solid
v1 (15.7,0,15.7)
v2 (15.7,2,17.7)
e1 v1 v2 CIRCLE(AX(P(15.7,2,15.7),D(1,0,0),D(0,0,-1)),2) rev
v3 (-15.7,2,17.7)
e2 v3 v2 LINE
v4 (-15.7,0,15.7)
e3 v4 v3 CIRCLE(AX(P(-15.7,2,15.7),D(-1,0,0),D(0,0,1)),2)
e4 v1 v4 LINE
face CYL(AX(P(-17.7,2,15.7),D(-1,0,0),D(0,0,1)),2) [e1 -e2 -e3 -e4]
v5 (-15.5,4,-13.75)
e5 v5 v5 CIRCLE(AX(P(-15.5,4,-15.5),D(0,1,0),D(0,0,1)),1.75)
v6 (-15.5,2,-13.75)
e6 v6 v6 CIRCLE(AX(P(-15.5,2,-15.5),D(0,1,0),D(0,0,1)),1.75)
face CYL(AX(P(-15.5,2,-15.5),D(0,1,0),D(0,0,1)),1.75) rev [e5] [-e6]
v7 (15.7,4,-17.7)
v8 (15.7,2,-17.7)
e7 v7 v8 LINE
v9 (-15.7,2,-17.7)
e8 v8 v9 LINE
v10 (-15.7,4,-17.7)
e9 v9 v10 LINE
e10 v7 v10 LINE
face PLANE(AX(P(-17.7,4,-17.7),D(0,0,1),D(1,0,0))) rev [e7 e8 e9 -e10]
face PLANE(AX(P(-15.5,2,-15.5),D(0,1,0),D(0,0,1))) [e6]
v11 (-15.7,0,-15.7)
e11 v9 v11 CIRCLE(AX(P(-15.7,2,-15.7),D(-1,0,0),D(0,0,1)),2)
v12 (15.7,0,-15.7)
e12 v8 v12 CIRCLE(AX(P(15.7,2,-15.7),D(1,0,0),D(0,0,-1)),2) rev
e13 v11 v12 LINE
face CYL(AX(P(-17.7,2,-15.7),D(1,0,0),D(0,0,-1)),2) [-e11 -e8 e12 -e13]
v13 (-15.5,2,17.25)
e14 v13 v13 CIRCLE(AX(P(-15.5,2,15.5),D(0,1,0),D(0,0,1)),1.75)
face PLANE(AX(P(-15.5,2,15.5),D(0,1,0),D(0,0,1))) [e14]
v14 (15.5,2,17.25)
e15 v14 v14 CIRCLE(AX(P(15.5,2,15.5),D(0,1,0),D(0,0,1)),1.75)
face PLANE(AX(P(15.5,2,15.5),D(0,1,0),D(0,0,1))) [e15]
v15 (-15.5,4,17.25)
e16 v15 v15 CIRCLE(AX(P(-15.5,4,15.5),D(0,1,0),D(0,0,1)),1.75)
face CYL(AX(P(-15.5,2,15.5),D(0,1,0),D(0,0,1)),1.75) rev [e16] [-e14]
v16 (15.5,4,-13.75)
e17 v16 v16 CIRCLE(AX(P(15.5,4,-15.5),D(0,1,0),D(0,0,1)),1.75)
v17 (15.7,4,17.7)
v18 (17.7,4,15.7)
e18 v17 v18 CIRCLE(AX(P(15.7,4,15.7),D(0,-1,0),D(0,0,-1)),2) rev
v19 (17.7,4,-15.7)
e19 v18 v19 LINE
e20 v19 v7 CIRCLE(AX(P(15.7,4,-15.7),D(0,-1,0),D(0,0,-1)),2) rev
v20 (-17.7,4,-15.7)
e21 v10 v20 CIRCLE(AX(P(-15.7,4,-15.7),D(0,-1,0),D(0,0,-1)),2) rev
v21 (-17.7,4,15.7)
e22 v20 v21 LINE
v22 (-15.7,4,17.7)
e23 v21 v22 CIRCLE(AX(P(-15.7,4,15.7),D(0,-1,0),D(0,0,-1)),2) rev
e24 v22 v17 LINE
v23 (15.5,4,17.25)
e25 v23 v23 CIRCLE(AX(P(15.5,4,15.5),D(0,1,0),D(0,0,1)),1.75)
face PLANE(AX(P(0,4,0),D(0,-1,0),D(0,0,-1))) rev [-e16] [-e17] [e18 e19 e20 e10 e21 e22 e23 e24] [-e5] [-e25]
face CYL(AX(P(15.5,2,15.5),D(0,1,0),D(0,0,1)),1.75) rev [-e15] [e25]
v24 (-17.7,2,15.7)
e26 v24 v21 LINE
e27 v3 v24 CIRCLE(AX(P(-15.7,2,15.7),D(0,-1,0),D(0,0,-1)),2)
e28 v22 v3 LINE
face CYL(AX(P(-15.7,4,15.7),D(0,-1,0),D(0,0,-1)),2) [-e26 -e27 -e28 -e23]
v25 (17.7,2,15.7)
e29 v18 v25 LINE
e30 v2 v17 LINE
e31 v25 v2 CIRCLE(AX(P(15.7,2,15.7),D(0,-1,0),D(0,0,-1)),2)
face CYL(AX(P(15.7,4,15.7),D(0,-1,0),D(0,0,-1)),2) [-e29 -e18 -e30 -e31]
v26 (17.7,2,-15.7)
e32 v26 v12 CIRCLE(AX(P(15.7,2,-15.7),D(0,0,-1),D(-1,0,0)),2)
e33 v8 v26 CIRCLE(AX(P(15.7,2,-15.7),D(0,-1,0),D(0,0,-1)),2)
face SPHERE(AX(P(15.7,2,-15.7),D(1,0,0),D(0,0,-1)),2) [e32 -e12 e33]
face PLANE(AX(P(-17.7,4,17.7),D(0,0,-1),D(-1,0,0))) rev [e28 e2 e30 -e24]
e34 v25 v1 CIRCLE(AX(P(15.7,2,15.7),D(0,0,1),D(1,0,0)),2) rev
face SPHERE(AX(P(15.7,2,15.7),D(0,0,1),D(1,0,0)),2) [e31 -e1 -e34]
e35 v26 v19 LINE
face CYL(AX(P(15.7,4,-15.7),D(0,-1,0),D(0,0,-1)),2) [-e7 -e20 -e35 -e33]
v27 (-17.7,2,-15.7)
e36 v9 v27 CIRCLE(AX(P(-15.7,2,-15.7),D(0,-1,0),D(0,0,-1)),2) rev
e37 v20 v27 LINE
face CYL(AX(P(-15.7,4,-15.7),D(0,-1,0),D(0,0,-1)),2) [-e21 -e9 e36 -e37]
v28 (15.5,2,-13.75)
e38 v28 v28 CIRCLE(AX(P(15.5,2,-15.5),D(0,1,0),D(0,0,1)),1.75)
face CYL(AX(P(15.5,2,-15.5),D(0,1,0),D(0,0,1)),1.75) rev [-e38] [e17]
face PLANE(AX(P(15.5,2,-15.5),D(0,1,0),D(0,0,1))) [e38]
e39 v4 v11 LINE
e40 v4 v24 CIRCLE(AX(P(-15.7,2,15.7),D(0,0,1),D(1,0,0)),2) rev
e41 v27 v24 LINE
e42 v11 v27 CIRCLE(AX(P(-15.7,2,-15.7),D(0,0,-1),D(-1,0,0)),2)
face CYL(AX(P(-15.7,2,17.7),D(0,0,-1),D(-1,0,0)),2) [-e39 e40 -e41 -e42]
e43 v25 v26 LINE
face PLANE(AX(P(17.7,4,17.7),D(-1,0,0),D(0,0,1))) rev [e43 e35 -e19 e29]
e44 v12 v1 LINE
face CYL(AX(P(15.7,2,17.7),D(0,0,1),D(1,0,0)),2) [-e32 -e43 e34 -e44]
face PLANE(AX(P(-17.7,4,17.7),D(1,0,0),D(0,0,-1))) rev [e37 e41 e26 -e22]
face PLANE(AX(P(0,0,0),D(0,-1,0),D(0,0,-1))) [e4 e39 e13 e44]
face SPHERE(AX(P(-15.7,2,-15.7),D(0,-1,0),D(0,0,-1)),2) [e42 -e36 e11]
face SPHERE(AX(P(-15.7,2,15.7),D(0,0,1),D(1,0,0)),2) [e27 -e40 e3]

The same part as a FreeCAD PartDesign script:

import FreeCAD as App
import Part
import Sketcher
from FreeCAD import Vector


def edges_at(feature, points):
    """Names of the edges that pass closest to the given points."""
    edges = feature.Shape.Edges
    near = lambda p: min(range(len(edges)), key=lambda i: edges[i].distToShape(Part.Vertex(*p))[0])
    return sorted({f"Edge{near(p) + 1}" for p in points})

doc = App.newDocument("Part")
body = doc.addObject("PartDesign::Body", "Body")

sketch1 = body.newObject("Sketcher::SketchObject", "Sketch")
sketch1.AttachmentSupport = (doc.getObject("XZ_Plane"), [""])
sketch1.MapMode = "FlatFace"
sketch1.addGeometry([
    Part.LineSegment(Vector(-17.7, -17.7, 0), Vector(-17.7, 17.7, 0)),
    Part.LineSegment(Vector(-17.7, 17.7, 0), Vector(17.7, 17.7, 0)),
    Part.LineSegment(Vector(17.7, 17.7, 0), Vector(17.7, -17.7, 0)),
    Part.LineSegment(Vector(17.7, -17.7, 0), Vector(-17.7, -17.7, 0)),
], False)
sketch1.addConstraint([
    Sketcher.Constraint("Coincident", 0, 2, 1, 1),
    Sketcher.Constraint("Coincident", 1, 2, 2, 1),
    Sketcher.Constraint("Coincident", 2, 2, 3, 1),
    Sketcher.Constraint("Coincident", 3, 2, 0, 1),
    Sketcher.Constraint("Vertical", 0),
    Sketcher.Constraint("Horizontal", 1),
    Sketcher.Constraint("Vertical", 2),
    Sketcher.Constraint("Horizontal", 3),
    Sketcher.Constraint("Symmetric", 0, 2, 2, 2, -1, 1),
    Sketcher.Constraint("Equal", 3, 0),
    Sketcher.Constraint("DistanceX", 1, 1, 1, 2, 35.4),
])
pad1 = body.newObject("PartDesign::Pad", "Pad")
pad1.Profile = sketch1
pad1.Length = 4
pad1.Reversed = True
doc.recompute()

fillet = body.newObject("PartDesign::Fillet", "Fillet")
fillet.Base = (pad1, edges_at(pad1, [
    (0, 0, 17.7),
    (-17.7, 0, 0),
    (0, 0, -17.7),
    (17.7, 0, 0),
    (17.7, 2, 17.7),
    (-17.7, 2, 17.7),
    (-17.7, 2, -17.7),
    (17.7, 2, -17.7),
]))
fillet.Radius = 2

sketch2 = body.newObject("Sketcher::SketchObject", "Sketch001")
sketch2.AttachmentSupport = (doc.getObject("XZ_Plane"), [""])
sketch2.MapMode = "FlatFace"
sketch2.AttachmentOffset = App.Placement(Vector(0, 0, -4), App.Rotation())
sketch2.addGeometry([
    Part.Circle(Vector(-15.5, -15.5, 0), Vector(0, 0, 1), 1.75),
    Part.Circle(Vector(15.5, -15.5, 0), Vector(0, 0, 1), 1.75),
    Part.Circle(Vector(15.5, 15.5, 0), Vector(0, 0, 1), 1.75),
    Part.Circle(Vector(-15.5, 15.5, 0), Vector(0, 0, 1), 1.75),
], False)
sketch2.addConstraint([
    Sketcher.Constraint("Equal", 0, 1),
    Sketcher.Constraint("Equal", 1, 2),
    Sketcher.Constraint("Equal", 2, 3),
    Sketcher.Constraint("Symmetric", 0, 3, 2, 3, -1, 1),
    Sketcher.Constraint("Symmetric", 1, 3, 3, 3, -1, 1),
    Sketcher.Constraint("Symmetric", 0, 3, 1, 3, -2),
    Sketcher.Constraint("Diameter", 0, 3.5),
    Sketcher.Constraint("DistanceX", 0, 3, 1, 3, 31.0),
    Sketcher.Constraint("DistanceY", 1, 3, 2, 3, 31.0),
])
pocket1 = body.newObject("PartDesign::Pocket", "Pocket")
pocket1.Profile = sketch2
pocket1.Length = 2
pocket1.Reversed = True

doc.recompute()
